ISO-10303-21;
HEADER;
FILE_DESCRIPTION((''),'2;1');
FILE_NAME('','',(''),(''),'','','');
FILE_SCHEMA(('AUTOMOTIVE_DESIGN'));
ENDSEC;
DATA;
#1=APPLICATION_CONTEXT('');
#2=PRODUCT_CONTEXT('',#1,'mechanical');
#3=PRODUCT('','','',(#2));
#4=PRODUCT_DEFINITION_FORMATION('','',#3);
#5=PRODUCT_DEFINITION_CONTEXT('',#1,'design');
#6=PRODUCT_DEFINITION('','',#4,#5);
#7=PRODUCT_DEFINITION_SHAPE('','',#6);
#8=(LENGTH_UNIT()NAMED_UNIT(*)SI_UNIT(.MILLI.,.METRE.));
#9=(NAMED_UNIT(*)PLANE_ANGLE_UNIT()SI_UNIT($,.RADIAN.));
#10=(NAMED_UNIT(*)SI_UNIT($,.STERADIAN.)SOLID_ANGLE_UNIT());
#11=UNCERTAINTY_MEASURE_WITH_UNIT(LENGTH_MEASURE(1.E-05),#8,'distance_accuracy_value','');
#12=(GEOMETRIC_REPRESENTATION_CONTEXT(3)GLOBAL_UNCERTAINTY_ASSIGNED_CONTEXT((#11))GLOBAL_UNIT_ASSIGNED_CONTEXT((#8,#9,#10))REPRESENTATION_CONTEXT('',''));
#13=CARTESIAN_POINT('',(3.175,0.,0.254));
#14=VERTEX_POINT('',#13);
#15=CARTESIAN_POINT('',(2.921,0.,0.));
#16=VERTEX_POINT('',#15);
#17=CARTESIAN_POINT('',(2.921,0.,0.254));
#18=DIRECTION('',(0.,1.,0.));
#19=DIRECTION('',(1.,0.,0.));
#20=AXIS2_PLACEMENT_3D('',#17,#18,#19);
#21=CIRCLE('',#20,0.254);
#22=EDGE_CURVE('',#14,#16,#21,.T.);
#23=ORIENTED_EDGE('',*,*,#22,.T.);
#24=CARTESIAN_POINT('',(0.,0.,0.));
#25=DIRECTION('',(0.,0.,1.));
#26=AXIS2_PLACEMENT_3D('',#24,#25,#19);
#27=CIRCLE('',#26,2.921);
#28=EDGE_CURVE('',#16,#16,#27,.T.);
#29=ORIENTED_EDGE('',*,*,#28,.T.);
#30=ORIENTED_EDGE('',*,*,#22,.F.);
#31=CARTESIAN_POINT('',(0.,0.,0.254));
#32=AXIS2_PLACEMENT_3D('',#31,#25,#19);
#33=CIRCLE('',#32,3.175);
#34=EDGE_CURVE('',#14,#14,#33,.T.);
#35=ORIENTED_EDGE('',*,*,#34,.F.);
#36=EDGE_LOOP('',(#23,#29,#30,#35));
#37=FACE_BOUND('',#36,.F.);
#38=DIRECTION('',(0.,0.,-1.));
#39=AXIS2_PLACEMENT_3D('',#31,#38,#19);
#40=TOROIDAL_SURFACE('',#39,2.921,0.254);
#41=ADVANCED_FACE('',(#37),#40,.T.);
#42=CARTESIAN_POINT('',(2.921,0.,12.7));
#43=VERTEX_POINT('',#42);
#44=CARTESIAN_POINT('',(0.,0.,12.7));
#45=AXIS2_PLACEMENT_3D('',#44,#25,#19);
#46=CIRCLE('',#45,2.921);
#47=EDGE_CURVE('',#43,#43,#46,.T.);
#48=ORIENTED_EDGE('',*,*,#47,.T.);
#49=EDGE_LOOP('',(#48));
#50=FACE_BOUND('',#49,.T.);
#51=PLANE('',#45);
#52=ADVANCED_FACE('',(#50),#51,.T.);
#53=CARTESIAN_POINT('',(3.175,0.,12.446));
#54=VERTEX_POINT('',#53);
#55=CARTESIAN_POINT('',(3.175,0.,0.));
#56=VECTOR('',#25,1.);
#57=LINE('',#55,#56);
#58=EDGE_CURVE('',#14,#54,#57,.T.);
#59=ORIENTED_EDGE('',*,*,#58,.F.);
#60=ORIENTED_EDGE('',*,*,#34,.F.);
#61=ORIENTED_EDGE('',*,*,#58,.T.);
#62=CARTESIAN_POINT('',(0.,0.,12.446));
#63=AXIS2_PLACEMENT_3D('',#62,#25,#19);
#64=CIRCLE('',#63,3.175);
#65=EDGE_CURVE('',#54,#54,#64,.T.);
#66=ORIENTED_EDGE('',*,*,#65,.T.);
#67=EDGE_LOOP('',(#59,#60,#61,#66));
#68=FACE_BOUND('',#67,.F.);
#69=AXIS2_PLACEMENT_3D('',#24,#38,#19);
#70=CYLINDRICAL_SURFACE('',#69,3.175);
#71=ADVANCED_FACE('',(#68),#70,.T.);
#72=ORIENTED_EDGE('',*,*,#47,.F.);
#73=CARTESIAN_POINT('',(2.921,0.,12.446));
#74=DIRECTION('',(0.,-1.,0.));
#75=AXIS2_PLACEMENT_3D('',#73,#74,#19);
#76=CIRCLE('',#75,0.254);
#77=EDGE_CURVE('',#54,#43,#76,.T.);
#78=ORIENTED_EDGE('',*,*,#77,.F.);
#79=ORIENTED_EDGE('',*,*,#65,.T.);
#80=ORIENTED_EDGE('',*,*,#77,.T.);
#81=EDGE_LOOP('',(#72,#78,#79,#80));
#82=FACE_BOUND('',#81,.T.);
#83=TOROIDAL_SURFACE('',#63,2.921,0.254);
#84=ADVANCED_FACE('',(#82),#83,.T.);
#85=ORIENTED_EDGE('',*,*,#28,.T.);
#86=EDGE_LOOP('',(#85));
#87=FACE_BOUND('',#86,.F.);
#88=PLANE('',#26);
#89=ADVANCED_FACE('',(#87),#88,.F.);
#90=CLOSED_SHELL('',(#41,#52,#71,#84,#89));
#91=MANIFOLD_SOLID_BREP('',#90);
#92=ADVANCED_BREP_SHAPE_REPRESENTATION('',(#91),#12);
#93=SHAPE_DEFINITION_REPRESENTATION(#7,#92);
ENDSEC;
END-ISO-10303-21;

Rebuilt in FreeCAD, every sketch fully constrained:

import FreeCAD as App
import Part
import Sketcher

V = App.Vector
Q = App.Units.Quantity


def edges_at(feature, points):
    """Names of the edges that pass closest to the given points."""
    edges = feature.Shape.Edges
    near = lambda p: min(range(len(edges)), key=lambda i: edges[i].distToShape(Part.Vertex(*p))[0])
    return sorted({f"Edge{near(p) + 1}" for p in points})

doc = App.newDocument("Part")
params = doc.addObject("Spreadsheet::Sheet", "Params")
for row, (alias, value) in enumerate([
    ("sketch1_diameter", "0.25 in"),
    ("pad1_length", "0.5 in"),
    ("fillet_radius", "0.01 in"),
], start=1):
    params.set(f"A{row}", alias)
    params.set(f"B{row}", "=" + value)
    params.setAlias(f"B{row}", alias)

body = doc.addObject("PartDesign::Body", "Body")

# Sketch on XY plane
sketch1 = doc.addObject("Sketcher::SketchObject", "Sketch")
body.addObject(sketch1)
sketch1.AttachmentSupport = (doc.XY_Plane, [""])
sketch1.MapMode = "FlatFace"
sketch1.addGeometry(Part.Circle(V(0, 0, 0), V(0, 0, 1), 3.2), False)
sketch1.addConstraint([
    Sketcher.Constraint("Coincident", 0, 3, -1, 1),
    Sketcher.Constraint("Diameter", 0, Q("0.25 in")),
])
sketch1.setExpression("Constraints[1]", "Params.sketch1_diameter")
pad1 = doc.addObject("PartDesign::Pad", "Pad")
body.addObject(pad1)
pad1.Profile = sketch1
pad1.setExpression("Length", "Params.pad1_length")
doc.recompute()

fillet = doc.addObject("PartDesign::Fillet", "Fillet")
body.addObject(fillet)
fillet.Base = (pad1, edges_at(pad1, [(-3.175, 0, 0), (-3.175, 0, 12.7)]))
fillet.setExpression("Radius", "Params.fillet_radius")

doc.recompute()
